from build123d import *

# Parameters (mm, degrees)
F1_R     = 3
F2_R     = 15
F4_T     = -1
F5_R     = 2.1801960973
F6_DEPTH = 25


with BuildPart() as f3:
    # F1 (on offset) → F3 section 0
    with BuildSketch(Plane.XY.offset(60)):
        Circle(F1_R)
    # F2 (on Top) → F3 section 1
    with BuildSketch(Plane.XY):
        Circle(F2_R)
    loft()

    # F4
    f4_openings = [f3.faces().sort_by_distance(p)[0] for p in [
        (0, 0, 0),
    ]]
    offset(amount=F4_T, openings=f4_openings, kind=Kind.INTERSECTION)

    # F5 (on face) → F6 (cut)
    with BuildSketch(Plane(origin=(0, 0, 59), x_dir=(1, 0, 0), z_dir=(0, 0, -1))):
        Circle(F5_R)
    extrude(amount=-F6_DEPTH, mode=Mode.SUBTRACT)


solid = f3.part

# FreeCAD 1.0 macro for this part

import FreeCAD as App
import Part
import Sketcher


def faces_at(feature, points):
    """Names of the faces that lie closest to the given points."""
    faces = feature.Shape.Faces
    near = lambda p: min(range(len(faces)), key=lambda i: faces[i].distToShape(Part.Vertex(*p))[0])
    return sorted({f"Face{near(p) + 1}" for p in points})

doc = App.newDocument("Part")
body = doc.addObject("PartDesign::Body", "Body")

# Sketch on XY plane
sketch1 = doc.addObject("Sketcher::SketchObject", "Sketch")
body.addObject(sketch1)
sketch1.AttachmentSupport = (doc.XY_Plane, [""])
sketch1.MapMode = "FlatFace"
sketch1.AttachmentOffset = App.Placement(App.Vector(0, 0, 60), App.Rotation())
sketch1.addGeometry(Part.Circle(App.Vector(0, 0, 0), App.Vector(0, 0, 1), 3), False)
sketch1.addConstraint([
    Sketcher.Constraint("Coincident", 0, 3, -1, 1),
    Sketcher.Constraint("Diameter", 0, 6.0),
])

# Sketch on XY plane
sketch2 = doc.addObject("Sketcher::SketchObject", "Sketch001")
body.addObject(sketch2)
sketch2.AttachmentSupport = (doc.XY_Plane, [""])
sketch2.MapMode = "FlatFace"
sketch2.addGeometry(Part.Circle(App.Vector(0, 0, 0), App.Vector(0, 0, 1), 15), False)
sketch2.addConstraint([
    Sketcher.Constraint("Coincident", 0, 3, -1, 1),
    Sketcher.Constraint("Diameter", 0, 30.0),
])

additiveloft = doc.addObject("PartDesign::AdditiveLoft", "AdditiveLoft")
body.addObject(additiveloft)
additiveloft.Profile = sketch1
additiveloft.Sections = [sketch2]
doc.recompute()

thickness = doc.addObject("PartDesign::Thickness", "Thickness")
body.addObject(thickness)
thickness.Base = (additiveloft, faces_at(additiveloft, [(0, 0, 0)]))
thickness.Value = 1
thickness.Reversed = True
thickness.Join = "Intersection"

# Sketch on XY plane
sketch3 = doc.addObject("Sketcher::SketchObject", "Sketch002")
body.addObject(sketch3)
sketch3.AttachmentSupport = (doc.XY_Plane, [""])
sketch3.MapMode = "FlatFace"
sketch3.AttachmentOffset = App.Placement(App.Vector(0, 0, 59), App.Rotation())
sketch3.addGeometry(Part.Circle(App.Vector(0, 0, 0), App.Vector(0, 0, 1), 2.2), False)
sketch3.addConstraint([
    Sketcher.Constraint("Coincident", 0, 3, -1, 1),
    Sketcher.Constraint("Diameter", 0, 4.360392),
])
pocket1 = doc.addObject("PartDesign::Pocket", "Pocket")
body.addObject(pocket1)
pocket1.Profile = sketch3
pocket1.Length = 25
pocket1.Reversed = True

doc.recompute()
